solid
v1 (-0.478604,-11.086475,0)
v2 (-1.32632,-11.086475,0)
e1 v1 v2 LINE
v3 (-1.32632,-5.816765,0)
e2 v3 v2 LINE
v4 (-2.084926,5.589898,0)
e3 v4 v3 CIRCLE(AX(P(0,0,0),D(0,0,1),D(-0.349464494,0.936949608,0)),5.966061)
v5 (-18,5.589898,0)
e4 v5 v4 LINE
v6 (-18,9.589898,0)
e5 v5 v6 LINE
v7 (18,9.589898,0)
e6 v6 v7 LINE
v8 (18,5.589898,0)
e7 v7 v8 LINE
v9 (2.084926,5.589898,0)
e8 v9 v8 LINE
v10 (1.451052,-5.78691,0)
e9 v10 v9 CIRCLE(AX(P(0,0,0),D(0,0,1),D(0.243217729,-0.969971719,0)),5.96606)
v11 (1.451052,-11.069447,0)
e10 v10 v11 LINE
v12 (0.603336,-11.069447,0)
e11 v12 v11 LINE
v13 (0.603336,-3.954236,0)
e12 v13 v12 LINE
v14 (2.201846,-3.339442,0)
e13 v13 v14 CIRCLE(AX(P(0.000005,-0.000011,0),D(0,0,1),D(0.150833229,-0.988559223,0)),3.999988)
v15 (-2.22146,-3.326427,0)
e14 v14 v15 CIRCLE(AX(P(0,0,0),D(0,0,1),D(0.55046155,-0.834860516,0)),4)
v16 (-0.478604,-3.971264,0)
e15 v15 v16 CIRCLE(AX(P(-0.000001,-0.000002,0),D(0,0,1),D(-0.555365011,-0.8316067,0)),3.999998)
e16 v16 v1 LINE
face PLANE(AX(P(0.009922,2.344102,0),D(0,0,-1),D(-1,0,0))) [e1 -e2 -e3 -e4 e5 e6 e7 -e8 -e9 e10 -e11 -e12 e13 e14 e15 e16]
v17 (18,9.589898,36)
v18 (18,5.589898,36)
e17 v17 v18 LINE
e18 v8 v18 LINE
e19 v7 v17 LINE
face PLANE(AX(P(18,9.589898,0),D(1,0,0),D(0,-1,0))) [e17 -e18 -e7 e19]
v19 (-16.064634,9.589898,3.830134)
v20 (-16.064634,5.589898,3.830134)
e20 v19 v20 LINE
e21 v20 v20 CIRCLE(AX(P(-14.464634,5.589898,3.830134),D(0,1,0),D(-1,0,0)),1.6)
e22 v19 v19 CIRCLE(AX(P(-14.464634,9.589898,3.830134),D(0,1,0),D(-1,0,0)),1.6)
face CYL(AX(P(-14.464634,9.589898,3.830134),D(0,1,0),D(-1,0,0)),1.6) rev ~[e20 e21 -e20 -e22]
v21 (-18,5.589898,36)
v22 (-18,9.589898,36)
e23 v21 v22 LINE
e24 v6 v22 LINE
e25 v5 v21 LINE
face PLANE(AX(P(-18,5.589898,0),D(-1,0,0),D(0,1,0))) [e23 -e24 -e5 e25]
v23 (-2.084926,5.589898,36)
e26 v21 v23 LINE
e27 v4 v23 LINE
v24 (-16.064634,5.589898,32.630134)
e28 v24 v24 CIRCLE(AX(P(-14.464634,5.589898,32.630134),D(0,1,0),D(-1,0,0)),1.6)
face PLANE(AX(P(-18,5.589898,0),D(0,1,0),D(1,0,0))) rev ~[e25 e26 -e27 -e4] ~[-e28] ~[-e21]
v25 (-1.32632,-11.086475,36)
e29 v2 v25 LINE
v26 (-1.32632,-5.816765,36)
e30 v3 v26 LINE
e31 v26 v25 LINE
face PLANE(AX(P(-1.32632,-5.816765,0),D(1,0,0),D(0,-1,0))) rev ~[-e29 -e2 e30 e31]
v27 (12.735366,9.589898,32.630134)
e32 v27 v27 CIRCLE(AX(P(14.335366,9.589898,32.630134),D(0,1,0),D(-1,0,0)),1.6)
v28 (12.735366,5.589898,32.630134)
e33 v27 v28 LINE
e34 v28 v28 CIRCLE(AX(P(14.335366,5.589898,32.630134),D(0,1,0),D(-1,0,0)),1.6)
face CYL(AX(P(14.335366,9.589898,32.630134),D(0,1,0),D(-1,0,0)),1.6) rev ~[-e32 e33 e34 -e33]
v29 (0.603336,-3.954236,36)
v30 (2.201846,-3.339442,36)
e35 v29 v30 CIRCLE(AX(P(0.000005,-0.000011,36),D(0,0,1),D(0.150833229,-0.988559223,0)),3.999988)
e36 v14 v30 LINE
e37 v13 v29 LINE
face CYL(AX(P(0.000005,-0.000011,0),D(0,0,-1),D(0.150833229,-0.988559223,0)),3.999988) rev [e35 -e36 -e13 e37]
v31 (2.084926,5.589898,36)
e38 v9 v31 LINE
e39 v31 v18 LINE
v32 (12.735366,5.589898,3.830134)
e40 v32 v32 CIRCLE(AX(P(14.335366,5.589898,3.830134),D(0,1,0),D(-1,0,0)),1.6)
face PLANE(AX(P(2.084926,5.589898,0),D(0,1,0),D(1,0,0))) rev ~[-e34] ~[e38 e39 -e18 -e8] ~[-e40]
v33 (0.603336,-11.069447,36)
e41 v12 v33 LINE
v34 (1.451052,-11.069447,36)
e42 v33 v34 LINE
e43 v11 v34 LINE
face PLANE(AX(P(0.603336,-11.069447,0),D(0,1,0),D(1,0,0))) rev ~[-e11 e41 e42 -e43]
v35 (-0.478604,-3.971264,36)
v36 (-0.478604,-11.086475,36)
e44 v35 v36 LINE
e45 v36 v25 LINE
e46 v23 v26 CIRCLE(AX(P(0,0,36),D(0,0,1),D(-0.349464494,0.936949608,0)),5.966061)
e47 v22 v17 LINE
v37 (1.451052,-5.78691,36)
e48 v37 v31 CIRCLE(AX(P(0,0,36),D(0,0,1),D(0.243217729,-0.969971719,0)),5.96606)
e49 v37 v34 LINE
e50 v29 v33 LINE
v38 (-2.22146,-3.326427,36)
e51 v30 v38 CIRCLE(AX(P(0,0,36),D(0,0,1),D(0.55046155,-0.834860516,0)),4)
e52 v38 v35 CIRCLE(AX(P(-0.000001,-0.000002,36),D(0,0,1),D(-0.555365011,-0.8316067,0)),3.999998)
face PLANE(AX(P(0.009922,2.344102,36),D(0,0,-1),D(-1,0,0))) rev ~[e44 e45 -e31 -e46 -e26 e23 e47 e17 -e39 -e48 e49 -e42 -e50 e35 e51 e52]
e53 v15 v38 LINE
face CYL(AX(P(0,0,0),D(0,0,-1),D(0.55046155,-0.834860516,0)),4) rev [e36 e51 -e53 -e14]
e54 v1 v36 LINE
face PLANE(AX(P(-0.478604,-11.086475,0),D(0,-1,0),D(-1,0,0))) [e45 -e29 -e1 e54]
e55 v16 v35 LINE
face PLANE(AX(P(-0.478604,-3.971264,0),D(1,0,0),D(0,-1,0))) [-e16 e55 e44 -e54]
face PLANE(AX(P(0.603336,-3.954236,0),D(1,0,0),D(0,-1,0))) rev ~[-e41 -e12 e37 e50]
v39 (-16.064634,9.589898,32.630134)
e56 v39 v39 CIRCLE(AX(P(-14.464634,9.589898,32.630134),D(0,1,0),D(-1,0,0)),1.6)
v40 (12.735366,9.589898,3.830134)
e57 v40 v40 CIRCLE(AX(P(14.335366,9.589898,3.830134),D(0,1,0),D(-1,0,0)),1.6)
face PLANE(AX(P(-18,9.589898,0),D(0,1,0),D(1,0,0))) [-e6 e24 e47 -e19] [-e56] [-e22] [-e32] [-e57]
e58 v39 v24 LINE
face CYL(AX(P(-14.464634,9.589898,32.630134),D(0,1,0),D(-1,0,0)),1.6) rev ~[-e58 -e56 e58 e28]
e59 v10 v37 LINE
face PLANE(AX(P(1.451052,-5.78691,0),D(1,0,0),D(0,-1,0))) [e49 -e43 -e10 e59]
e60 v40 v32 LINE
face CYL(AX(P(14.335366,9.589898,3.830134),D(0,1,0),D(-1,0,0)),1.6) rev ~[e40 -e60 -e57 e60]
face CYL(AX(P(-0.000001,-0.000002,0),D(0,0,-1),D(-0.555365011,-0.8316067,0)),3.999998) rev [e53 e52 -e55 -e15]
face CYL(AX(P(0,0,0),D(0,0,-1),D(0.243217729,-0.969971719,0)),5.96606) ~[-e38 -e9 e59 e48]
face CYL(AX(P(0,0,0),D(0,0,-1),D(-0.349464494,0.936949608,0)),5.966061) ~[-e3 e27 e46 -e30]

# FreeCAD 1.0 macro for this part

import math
import FreeCAD as App
import Part
import Sketcher
from FreeCAD import Vector
Q = App.Units.Quantity

doc = App.newDocument("Part")
body = doc.addObject("PartDesign::Body", "Body")

sketch1 = body.newObject("Sketcher::SketchObject", "Sketch")
sketch1.AttachmentSupport = (doc.getObject("XY_Plane"), [""])
sketch1.MapMode = "FlatFace"
sketch1.addGeometry([
    Part.ArcOfCircle(Part.Circle(Vector(0, 0, 0), Vector(0, 0, 1), 4), math.radians(-57), math.radians(236)),
    Part.ArcOfCircle(Part.Circle(Vector(0, 0, 0), Vector(0, 0, 1), 4), math.radians(-81), math.radians(-57)),
    Part.LineSegment(Vector(0.6, -4, 0), Vector(0.6, -11.1, 0)),
    Part.LineSegment(Vector(0.6, -11.1, 0), Vector(1.5, -11.1, 0)),
    Part.LineSegment(Vector(1.5, -11.1, 0), Vector(1.5, -5.8, 0)),
    Part.ArcOfCircle(Part.Circle(Vector(0, 0, 0), Vector(0, 0, 1), 6), math.radians(-76), math.radians(70)),
    Part.LineSegment(Vector(2.1, 5.6, 0), Vector(18, 5.6, 0)),
    Part.LineSegment(Vector(18, 5.6, 0), Vector(18, 9.6, 0)),
    Part.LineSegment(Vector(18, 9.6, 0), Vector(-18, 9.6, 0)),
    Part.LineSegment(Vector(-18, 9.6, 0), Vector(-18, 5.6, 0)),
    Part.LineSegment(Vector(-18, 5.6, 0), Vector(-2.1, 5.6, 0)),
    Part.ArcOfCircle(Part.Circle(Vector(0, 0, 0), Vector(0, 0, 1), 6), math.radians(110), math.radians(257)),
    Part.LineSegment(Vector(-1.3, -5.8, 0), Vector(-1.3, -11.1, 0)),
    Part.LineSegment(Vector(-1.3, -11.1, 0), Vector(-0.5, -11.1, 0)),
    Part.LineSegment(Vector(-0.5, -11.1, 0), Vector(-0.5, -4, 0)),
    Part.ArcOfCircle(Part.Circle(Vector(0, 0, 0), Vector(0, 0, 1), 4), math.radians(-124), math.radians(-97)),
], False)
sketch1.addConstraint([
    Sketcher.Constraint("Tangent", 0, 1, 1, 2),
    Sketcher.Constraint("Coincident", 1, 1, 2, 1),
    Sketcher.Constraint("Coincident", 2, 2, 3, 1),
    Sketcher.Constraint("Coincident", 3, 2, 4, 1),
    Sketcher.Constraint("Coincident", 4, 2, 5, 1),
    Sketcher.Constraint("Coincident", 5, 2, 6, 1),
    Sketcher.Constraint("Coincident", 6, 2, 7, 1),
    Sketcher.Constraint("Coincident", 7, 2, 8, 1),
    Sketcher.Constraint("Coincident", 8, 2, 9, 1),
    Sketcher.Constraint("Coincident", 9, 2, 10, 1),
    Sketcher.Constraint("Coincident", 10, 2, 11, 1),
    Sketcher.Constraint("Coincident", 11, 2, 12, 1),
    Sketcher.Constraint("Coincident", 12, 2, 13, 1),
    Sketcher.Constraint("Coincident", 13, 2, 14, 1),
    Sketcher.Constraint("Coincident", 14, 2, 15, 2),
    Sketcher.Constraint("Tangent", 15, 1, 0, 2),
    Sketcher.Constraint("Vertical", 2),
    Sketcher.Constraint("Horizontal", 3),
    Sketcher.Constraint("Vertical", 4),
    Sketcher.Constraint("Horizontal", 6),
    Sketcher.Constraint("Vertical", 7),
    Sketcher.Constraint("Horizontal", 8),
    Sketcher.Constraint("Vertical", 9),
    Sketcher.Constraint("Horizontal", 10),
    Sketcher.Constraint("Vertical", 12),
    Sketcher.Constraint("Horizontal", 13),
    Sketcher.Constraint("Vertical", 14),
    Sketcher.Constraint("Coincident", 0, 3, -1, 1),
    Sketcher.Constraint("Coincident", 5, 3, -1, 1),
    Sketcher.Constraint("Coincident", 11, 3, -1, 1),
    Sketcher.Constraint("Equal", 5, 11),
    Sketcher.Constraint("Symmetric", 6, 2, 9, 2, -2),
    Sketcher.Constraint("PointOnObject", 15, 3, -2),
    Sketcher.Constraint("Equal", 3, 13),
    Sketcher.Constraint("Equal", 2, 14),
    Sketcher.Constraint("Radius", 0, Q("4 mm")),
    Sketcher.Constraint("DistanceX", 8, 2, 8, 1, Q("36 mm")),
    Sketcher.Constraint("DistanceY", 7, 1, 7, 2, Q("4 mm")),
    Sketcher.Constraint("Radius", 5, Q("5.96606 mm")),
    Sketcher.Constraint("Radius", 1, Q("3.999988 mm")),
    Sketcher.Constraint("DistanceY", 2, 2, 2, 1, Q("7.115211 mm")),
    Sketcher.Constraint("DistanceY", 12, 2, 12, 1, Q("5.26971 mm")),
    Sketcher.Constraint("DistanceY", 4, 2, 1, 3, Q("5.786899 mm")),
    Sketcher.Constraint("DistanceY", 11, 3, 5, 2, Q("5.589898 mm")),
    Sketcher.Constraint("DistanceX", 3, 1, 3, 2, Q("0.847716 mm")),
    Sketcher.Constraint("DistanceX", 15, 1, -1, 1, Q("2.22146 mm")),
    Sketcher.Constraint("DistanceX", 1, 3, 0, 1, Q("2.201841 mm")),
])
pad1 = body.newObject("PartDesign::Pad", "Pad")
pad1.Profile = sketch1
pad1.Length = 36

sketch2 = body.newObject("Sketcher::SketchObject", "Sketch001")
sketch2.AttachmentSupport = (doc.getObject("XZ_Plane"), [""])
sketch2.MapMode = "FlatFace"
sketch2.AttachmentOffset = App.Placement(Vector(0, 0, -9.589898), App.Rotation())
sketch2.addGeometry([
    Part.Circle(Vector(14.3, 32.6, 0), Vector(0, 0, 1), 1.6),
    Part.Circle(Vector(-14.5, 32.6, 0), Vector(0, 0, 1), 1.6),
    Part.Circle(Vector(-14.5, 3.8, 0), Vector(0, 0, 1), 1.6),
    Part.Circle(Vector(14.3, 3.8, 0), Vector(0, 0, 1), 1.6),
], False)
sketch2.addConstraint([
    Sketcher.Constraint("Equal", 0, 1),
    Sketcher.Constraint("Equal", 1, 2),
    Sketcher.Constraint("Equal", 2, 3),
    Sketcher.Constraint("Horizontal", 0, 3, 1, 3),
    Sketcher.Constraint("Horizontal", 2, 3, 3, 3),
    Sketcher.Constraint("Vertical", 1, 3, 2, 3),
    Sketcher.Constraint("Vertical", 0, 3, 3, 3),
    Sketcher.Constraint("Diameter", 0, Q("3.2 mm")),
    Sketcher.Constraint("DistanceX", 1, 3, 0, 3, Q("28.8 mm")),
    Sketcher.Constraint("DistanceY", 2, 3, 1, 3, Q("28.8 mm")),
    Sketcher.Constraint("DistanceX", -1, 1, 0, 3, Q("14.335366 mm")),
    Sketcher.Constraint("DistanceY", -1, 1, 0, 3, Q("32.630134 mm")),
])
pocket1 = body.newObject("PartDesign::Pocket", "Pocket")
pocket1.Profile = sketch2
pocket1.Length = 10
pocket1.Reversed = True

doc.recompute()
